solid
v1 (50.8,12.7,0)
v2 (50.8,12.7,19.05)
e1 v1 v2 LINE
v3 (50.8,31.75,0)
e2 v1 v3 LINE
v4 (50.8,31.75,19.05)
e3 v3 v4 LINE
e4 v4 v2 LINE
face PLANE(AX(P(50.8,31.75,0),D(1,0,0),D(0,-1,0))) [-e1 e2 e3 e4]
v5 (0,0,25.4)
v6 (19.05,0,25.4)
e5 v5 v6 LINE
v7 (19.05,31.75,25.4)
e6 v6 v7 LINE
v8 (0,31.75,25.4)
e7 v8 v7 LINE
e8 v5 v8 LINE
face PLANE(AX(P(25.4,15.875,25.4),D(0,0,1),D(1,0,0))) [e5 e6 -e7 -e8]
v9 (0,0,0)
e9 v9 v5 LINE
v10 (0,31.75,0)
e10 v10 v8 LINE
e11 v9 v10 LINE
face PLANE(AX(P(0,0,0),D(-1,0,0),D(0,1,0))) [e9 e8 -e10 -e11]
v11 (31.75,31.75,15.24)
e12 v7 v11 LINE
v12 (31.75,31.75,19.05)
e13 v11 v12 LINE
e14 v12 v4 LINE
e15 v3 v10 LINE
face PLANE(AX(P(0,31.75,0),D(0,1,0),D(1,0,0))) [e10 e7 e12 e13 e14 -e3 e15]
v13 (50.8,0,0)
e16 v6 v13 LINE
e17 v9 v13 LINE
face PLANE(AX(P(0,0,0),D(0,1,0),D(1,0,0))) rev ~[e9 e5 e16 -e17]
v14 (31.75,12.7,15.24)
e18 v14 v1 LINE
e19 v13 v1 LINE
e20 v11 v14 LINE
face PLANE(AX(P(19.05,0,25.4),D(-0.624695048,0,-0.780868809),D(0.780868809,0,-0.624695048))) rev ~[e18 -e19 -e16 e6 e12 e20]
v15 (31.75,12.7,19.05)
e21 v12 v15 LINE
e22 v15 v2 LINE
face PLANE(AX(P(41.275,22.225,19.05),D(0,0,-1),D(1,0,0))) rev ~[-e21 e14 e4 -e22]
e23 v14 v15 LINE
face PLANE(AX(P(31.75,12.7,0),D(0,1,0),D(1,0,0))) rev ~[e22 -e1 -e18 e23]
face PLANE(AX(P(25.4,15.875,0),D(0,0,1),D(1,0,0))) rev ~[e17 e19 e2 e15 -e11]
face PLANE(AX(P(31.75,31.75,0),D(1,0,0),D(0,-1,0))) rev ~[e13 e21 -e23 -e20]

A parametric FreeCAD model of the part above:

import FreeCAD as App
import Part
import Sketcher
Q = App.Units.Quantity


def add_polygon(sketch, points):
    """Adds a closed chain of lines whose ends are joined by coincident constraints."""
    first, n = sketch.GeometryCount, len(points)
    for a, b in zip(points, points[1:] + points[:1]):
        sketch.addGeometry(Part.LineSegment(App.Vector(*a, 0), App.Vector(*b, 0)), False)
    for i in range(n):
        sketch.addConstraint(Sketcher.Constraint("Coincident", first + i, 2, first + (i + 1) % n, 1))

doc = App.newDocument("Part")
body = doc.addObject("PartDesign::Body", "Body")

# Sketch on XY plane
sketch1 = doc.addObject("Sketcher::SketchObject", "Sketch")
body.addObject(sketch1)
sketch1.AttachmentSupport = (doc.XY_Plane, [""])
sketch1.MapMode = "FlatFace"
add_polygon(sketch1, [(0, 31.75), (0, 0), (50.8, 0), (50.8, 31.75)])  # lines 0-3
sketch1.addConstraint([
    Sketcher.Constraint("Vertical", 0),
    Sketcher.Constraint("Horizontal", 1),
    Sketcher.Constraint("Vertical", 2),
    Sketcher.Constraint("Horizontal", 3),
    Sketcher.Constraint("Coincident", 0, 2, -1, 1),
    Sketcher.Constraint("DistanceX", 1, 1, 1, 2, Q("2 in")),
    Sketcher.Constraint("DistanceY", 0, 2, 0, 1, Q("1.25 in")),
])
pad1 = doc.addObject("PartDesign::Pad", "Pad")
body.addObject(pad1)
pad1.Profile = sketch1
pad1.Length = Q("1 in")

# Sketch on XZ plane
sketch2 = doc.addObject("Sketcher::SketchObject", "Sketch001")
body.addObject(sketch2)
sketch2.AttachmentSupport = (doc.XZ_Plane, [""])
sketch2.MapMode = "FlatFace"
add_polygon(sketch2, [(19.05, 25.4), (50.8, 0), (50.8, 25.4)])  # lines 0-2
sketch2.addConstraint([
    Sketcher.Constraint("Vertical", 1),
    Sketcher.Constraint("Horizontal", 2),
    Sketcher.Constraint("PointOnObject", 0, 2, -1),
    Sketcher.Constraint("DistanceY", 1, 1, 1, 2, Q("1 in")),
    Sketcher.Constraint("DistanceX", -1, 1, 0, 2, Q("2 in")),
    Sketcher.Constraint("DistanceX", 2, 2, 2, 1, Q("1.25 in")),
])
pocket1 = doc.addObject("PartDesign::Pocket", "Pocket")
body.addObject(pocket1)
pocket1.Profile = sketch2
pocket1.Length = Q("1.25 in")

# Sketch on XY plane
sketch3 = doc.addObject("Sketcher::SketchObject", "Sketch002")
body.addObject(sketch3)
sketch3.AttachmentSupport = (doc.XY_Plane, [""])
sketch3.MapMode = "FlatFace"
add_polygon(sketch3, [(31.75, 12.7), (31.75, 31.75), (50.8, 31.75), (50.8, 12.7)])  # lines 0-3
sketch3.addConstraint([
    Sketcher.Constraint("Vertical", 0),
    Sketcher.Constraint("Horizontal", 1),
    Sketcher.Constraint("Vertical", 2),
    Sketcher.Constraint("Horizontal", 3),
    Sketcher.Constraint("Equal", 3, 0),
    Sketcher.Constraint("DistanceX", -1, 1, 1, 2, Q("2 in")),
    Sketcher.Constraint("DistanceX", 1, 1, 1, 2, Q("0.75 in")),
    Sketcher.Constraint("DistanceY", -1, 1, 2, 2, Q("0.5 in")),
])
pad2 = doc.addObject("PartDesign::Pad", "Pad001")
body.addObject(pad2)
pad2.Profile = sketch3
pad2.Length = Q("0.75 in")

doc.recompute()
